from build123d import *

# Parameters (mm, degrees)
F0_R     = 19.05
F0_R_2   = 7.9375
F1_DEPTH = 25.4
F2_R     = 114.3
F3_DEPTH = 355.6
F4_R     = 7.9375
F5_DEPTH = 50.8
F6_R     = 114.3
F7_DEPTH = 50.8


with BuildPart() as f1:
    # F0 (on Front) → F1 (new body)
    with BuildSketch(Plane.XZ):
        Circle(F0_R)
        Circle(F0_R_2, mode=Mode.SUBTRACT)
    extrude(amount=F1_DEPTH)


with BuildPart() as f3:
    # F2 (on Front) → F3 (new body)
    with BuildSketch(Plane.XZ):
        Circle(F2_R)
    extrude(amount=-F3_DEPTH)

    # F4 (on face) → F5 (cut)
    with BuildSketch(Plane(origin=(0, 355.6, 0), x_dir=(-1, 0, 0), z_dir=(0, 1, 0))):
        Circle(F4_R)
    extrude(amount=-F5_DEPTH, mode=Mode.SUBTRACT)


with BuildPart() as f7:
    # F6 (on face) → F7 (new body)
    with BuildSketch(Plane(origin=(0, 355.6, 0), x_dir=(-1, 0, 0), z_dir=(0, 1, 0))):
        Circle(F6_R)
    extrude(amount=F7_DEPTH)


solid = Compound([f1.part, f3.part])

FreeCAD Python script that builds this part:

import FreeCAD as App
import Part
import Sketcher
Q = App.Units.Quantity

doc = App.newDocument("Part")
body = doc.addObject("PartDesign::Body", "Body")

# Sketch on XZ plane
sketch1 = body.newObject("Sketcher::SketchObject", "Sketch")
sketch1.AttachmentSupport = (doc.getObject("XZ_Plane"), [""])
sketch1.MapMode = "FlatFace"
sketch1.addGeometry([
    Part.Circle(App.Vector(0, 0, 0), App.Vector(0, 0, 1), 19.05),
    Part.Circle(App.Vector(0, 0, 0), App.Vector(0, 0, 1), 7.9375),
], False)
sketch1.addConstraint([
    Sketcher.Constraint("Coincident", 0, 3, -1, 1),
    Sketcher.Constraint("Coincident", 1, 3, -1, 1),
    Sketcher.Constraint("Diameter", 0, Q("1.5 in")),
    Sketcher.Constraint("Diameter", 1, Q("0.625 in")),
])
pad1 = body.newObject("PartDesign::Pad", "Pad")
pad1.Profile = sketch1
pad1.Length = Q("1 in")
body2 = doc.addObject("PartDesign::Body", "Body001")

# Sketch on XZ plane
sketch2 = body2.newObject("Sketcher::SketchObject", "Sketch001")
sketch2.AttachmentSupport = (doc.getObject("XZ_Plane001"), [""])
sketch2.MapMode = "FlatFace"
sketch2.addGeometry(Part.Circle(App.Vector(0, 0, 0), App.Vector(0, 0, 1), 114.3), False)
sketch2.addConstraint([
    Sketcher.Constraint("Coincident", 0, 3, -1, 1),
    Sketcher.Constraint("Diameter", 0, Q("9 in")),
])
pad2 = body2.newObject("PartDesign::Pad", "Pad001")
pad2.Profile = sketch2
pad2.Length = Q("14 in")
pad2.Reversed = True

# Sketch on XZ plane
sketch3 = body2.newObject("Sketcher::SketchObject", "Sketch002")
sketch3.AttachmentSupport = (doc.getObject("XZ_Plane001"), [""])
sketch3.MapMode = "FlatFace"
sketch3.AttachmentOffset = App.Placement(App.Vector(0, 0, -14 * 25.4), App.Rotation())
sketch3.addGeometry(Part.Circle(App.Vector(0, 0, 0), App.Vector(0, 0, 1), 7.9375), False)
sketch3.addConstraint([
    Sketcher.Constraint("Coincident", 0, 3, -1, 1),
    Sketcher.Constraint("Diameter", 0, Q("0.625 in")),
])
pocket1 = body2.newObject("PartDesign::Pocket", "Pocket")
pocket1.Profile = sketch3
pocket1.Length = Q("2 in")
pocket1.Reversed = True
body3 = doc.addObject("PartDesign::Body", "Body002")

# Sketch on XZ plane
sketch4 = body3.newObject("Sketcher::SketchObject", "Sketch003")
sketch4.AttachmentSupport = (doc.getObject("XZ_Plane002"), [""])
sketch4.MapMode = "FlatFace"
sketch4.AttachmentOffset = App.Placement(App.Vector(0, 0, -14 * 25.4), App.Rotation())
sketch4.addGeometry(Part.Circle(App.Vector(0, 0, 0), App.Vector(0, 0, 1), 114.3), False)
sketch4.addConstraint([
    Sketcher.Constraint("Coincident", 0, 3, -1, 1),
    Sketcher.Constraint("Diameter", 0, Q("9 in")),
])
pad3 = body3.newObject("PartDesign::Pad", "Pad002")
pad3.Profile = sketch4
pad3.Length = Q("2 in")
pad3.Reversed = True
body3.Visibility = False

doc.recompute()
